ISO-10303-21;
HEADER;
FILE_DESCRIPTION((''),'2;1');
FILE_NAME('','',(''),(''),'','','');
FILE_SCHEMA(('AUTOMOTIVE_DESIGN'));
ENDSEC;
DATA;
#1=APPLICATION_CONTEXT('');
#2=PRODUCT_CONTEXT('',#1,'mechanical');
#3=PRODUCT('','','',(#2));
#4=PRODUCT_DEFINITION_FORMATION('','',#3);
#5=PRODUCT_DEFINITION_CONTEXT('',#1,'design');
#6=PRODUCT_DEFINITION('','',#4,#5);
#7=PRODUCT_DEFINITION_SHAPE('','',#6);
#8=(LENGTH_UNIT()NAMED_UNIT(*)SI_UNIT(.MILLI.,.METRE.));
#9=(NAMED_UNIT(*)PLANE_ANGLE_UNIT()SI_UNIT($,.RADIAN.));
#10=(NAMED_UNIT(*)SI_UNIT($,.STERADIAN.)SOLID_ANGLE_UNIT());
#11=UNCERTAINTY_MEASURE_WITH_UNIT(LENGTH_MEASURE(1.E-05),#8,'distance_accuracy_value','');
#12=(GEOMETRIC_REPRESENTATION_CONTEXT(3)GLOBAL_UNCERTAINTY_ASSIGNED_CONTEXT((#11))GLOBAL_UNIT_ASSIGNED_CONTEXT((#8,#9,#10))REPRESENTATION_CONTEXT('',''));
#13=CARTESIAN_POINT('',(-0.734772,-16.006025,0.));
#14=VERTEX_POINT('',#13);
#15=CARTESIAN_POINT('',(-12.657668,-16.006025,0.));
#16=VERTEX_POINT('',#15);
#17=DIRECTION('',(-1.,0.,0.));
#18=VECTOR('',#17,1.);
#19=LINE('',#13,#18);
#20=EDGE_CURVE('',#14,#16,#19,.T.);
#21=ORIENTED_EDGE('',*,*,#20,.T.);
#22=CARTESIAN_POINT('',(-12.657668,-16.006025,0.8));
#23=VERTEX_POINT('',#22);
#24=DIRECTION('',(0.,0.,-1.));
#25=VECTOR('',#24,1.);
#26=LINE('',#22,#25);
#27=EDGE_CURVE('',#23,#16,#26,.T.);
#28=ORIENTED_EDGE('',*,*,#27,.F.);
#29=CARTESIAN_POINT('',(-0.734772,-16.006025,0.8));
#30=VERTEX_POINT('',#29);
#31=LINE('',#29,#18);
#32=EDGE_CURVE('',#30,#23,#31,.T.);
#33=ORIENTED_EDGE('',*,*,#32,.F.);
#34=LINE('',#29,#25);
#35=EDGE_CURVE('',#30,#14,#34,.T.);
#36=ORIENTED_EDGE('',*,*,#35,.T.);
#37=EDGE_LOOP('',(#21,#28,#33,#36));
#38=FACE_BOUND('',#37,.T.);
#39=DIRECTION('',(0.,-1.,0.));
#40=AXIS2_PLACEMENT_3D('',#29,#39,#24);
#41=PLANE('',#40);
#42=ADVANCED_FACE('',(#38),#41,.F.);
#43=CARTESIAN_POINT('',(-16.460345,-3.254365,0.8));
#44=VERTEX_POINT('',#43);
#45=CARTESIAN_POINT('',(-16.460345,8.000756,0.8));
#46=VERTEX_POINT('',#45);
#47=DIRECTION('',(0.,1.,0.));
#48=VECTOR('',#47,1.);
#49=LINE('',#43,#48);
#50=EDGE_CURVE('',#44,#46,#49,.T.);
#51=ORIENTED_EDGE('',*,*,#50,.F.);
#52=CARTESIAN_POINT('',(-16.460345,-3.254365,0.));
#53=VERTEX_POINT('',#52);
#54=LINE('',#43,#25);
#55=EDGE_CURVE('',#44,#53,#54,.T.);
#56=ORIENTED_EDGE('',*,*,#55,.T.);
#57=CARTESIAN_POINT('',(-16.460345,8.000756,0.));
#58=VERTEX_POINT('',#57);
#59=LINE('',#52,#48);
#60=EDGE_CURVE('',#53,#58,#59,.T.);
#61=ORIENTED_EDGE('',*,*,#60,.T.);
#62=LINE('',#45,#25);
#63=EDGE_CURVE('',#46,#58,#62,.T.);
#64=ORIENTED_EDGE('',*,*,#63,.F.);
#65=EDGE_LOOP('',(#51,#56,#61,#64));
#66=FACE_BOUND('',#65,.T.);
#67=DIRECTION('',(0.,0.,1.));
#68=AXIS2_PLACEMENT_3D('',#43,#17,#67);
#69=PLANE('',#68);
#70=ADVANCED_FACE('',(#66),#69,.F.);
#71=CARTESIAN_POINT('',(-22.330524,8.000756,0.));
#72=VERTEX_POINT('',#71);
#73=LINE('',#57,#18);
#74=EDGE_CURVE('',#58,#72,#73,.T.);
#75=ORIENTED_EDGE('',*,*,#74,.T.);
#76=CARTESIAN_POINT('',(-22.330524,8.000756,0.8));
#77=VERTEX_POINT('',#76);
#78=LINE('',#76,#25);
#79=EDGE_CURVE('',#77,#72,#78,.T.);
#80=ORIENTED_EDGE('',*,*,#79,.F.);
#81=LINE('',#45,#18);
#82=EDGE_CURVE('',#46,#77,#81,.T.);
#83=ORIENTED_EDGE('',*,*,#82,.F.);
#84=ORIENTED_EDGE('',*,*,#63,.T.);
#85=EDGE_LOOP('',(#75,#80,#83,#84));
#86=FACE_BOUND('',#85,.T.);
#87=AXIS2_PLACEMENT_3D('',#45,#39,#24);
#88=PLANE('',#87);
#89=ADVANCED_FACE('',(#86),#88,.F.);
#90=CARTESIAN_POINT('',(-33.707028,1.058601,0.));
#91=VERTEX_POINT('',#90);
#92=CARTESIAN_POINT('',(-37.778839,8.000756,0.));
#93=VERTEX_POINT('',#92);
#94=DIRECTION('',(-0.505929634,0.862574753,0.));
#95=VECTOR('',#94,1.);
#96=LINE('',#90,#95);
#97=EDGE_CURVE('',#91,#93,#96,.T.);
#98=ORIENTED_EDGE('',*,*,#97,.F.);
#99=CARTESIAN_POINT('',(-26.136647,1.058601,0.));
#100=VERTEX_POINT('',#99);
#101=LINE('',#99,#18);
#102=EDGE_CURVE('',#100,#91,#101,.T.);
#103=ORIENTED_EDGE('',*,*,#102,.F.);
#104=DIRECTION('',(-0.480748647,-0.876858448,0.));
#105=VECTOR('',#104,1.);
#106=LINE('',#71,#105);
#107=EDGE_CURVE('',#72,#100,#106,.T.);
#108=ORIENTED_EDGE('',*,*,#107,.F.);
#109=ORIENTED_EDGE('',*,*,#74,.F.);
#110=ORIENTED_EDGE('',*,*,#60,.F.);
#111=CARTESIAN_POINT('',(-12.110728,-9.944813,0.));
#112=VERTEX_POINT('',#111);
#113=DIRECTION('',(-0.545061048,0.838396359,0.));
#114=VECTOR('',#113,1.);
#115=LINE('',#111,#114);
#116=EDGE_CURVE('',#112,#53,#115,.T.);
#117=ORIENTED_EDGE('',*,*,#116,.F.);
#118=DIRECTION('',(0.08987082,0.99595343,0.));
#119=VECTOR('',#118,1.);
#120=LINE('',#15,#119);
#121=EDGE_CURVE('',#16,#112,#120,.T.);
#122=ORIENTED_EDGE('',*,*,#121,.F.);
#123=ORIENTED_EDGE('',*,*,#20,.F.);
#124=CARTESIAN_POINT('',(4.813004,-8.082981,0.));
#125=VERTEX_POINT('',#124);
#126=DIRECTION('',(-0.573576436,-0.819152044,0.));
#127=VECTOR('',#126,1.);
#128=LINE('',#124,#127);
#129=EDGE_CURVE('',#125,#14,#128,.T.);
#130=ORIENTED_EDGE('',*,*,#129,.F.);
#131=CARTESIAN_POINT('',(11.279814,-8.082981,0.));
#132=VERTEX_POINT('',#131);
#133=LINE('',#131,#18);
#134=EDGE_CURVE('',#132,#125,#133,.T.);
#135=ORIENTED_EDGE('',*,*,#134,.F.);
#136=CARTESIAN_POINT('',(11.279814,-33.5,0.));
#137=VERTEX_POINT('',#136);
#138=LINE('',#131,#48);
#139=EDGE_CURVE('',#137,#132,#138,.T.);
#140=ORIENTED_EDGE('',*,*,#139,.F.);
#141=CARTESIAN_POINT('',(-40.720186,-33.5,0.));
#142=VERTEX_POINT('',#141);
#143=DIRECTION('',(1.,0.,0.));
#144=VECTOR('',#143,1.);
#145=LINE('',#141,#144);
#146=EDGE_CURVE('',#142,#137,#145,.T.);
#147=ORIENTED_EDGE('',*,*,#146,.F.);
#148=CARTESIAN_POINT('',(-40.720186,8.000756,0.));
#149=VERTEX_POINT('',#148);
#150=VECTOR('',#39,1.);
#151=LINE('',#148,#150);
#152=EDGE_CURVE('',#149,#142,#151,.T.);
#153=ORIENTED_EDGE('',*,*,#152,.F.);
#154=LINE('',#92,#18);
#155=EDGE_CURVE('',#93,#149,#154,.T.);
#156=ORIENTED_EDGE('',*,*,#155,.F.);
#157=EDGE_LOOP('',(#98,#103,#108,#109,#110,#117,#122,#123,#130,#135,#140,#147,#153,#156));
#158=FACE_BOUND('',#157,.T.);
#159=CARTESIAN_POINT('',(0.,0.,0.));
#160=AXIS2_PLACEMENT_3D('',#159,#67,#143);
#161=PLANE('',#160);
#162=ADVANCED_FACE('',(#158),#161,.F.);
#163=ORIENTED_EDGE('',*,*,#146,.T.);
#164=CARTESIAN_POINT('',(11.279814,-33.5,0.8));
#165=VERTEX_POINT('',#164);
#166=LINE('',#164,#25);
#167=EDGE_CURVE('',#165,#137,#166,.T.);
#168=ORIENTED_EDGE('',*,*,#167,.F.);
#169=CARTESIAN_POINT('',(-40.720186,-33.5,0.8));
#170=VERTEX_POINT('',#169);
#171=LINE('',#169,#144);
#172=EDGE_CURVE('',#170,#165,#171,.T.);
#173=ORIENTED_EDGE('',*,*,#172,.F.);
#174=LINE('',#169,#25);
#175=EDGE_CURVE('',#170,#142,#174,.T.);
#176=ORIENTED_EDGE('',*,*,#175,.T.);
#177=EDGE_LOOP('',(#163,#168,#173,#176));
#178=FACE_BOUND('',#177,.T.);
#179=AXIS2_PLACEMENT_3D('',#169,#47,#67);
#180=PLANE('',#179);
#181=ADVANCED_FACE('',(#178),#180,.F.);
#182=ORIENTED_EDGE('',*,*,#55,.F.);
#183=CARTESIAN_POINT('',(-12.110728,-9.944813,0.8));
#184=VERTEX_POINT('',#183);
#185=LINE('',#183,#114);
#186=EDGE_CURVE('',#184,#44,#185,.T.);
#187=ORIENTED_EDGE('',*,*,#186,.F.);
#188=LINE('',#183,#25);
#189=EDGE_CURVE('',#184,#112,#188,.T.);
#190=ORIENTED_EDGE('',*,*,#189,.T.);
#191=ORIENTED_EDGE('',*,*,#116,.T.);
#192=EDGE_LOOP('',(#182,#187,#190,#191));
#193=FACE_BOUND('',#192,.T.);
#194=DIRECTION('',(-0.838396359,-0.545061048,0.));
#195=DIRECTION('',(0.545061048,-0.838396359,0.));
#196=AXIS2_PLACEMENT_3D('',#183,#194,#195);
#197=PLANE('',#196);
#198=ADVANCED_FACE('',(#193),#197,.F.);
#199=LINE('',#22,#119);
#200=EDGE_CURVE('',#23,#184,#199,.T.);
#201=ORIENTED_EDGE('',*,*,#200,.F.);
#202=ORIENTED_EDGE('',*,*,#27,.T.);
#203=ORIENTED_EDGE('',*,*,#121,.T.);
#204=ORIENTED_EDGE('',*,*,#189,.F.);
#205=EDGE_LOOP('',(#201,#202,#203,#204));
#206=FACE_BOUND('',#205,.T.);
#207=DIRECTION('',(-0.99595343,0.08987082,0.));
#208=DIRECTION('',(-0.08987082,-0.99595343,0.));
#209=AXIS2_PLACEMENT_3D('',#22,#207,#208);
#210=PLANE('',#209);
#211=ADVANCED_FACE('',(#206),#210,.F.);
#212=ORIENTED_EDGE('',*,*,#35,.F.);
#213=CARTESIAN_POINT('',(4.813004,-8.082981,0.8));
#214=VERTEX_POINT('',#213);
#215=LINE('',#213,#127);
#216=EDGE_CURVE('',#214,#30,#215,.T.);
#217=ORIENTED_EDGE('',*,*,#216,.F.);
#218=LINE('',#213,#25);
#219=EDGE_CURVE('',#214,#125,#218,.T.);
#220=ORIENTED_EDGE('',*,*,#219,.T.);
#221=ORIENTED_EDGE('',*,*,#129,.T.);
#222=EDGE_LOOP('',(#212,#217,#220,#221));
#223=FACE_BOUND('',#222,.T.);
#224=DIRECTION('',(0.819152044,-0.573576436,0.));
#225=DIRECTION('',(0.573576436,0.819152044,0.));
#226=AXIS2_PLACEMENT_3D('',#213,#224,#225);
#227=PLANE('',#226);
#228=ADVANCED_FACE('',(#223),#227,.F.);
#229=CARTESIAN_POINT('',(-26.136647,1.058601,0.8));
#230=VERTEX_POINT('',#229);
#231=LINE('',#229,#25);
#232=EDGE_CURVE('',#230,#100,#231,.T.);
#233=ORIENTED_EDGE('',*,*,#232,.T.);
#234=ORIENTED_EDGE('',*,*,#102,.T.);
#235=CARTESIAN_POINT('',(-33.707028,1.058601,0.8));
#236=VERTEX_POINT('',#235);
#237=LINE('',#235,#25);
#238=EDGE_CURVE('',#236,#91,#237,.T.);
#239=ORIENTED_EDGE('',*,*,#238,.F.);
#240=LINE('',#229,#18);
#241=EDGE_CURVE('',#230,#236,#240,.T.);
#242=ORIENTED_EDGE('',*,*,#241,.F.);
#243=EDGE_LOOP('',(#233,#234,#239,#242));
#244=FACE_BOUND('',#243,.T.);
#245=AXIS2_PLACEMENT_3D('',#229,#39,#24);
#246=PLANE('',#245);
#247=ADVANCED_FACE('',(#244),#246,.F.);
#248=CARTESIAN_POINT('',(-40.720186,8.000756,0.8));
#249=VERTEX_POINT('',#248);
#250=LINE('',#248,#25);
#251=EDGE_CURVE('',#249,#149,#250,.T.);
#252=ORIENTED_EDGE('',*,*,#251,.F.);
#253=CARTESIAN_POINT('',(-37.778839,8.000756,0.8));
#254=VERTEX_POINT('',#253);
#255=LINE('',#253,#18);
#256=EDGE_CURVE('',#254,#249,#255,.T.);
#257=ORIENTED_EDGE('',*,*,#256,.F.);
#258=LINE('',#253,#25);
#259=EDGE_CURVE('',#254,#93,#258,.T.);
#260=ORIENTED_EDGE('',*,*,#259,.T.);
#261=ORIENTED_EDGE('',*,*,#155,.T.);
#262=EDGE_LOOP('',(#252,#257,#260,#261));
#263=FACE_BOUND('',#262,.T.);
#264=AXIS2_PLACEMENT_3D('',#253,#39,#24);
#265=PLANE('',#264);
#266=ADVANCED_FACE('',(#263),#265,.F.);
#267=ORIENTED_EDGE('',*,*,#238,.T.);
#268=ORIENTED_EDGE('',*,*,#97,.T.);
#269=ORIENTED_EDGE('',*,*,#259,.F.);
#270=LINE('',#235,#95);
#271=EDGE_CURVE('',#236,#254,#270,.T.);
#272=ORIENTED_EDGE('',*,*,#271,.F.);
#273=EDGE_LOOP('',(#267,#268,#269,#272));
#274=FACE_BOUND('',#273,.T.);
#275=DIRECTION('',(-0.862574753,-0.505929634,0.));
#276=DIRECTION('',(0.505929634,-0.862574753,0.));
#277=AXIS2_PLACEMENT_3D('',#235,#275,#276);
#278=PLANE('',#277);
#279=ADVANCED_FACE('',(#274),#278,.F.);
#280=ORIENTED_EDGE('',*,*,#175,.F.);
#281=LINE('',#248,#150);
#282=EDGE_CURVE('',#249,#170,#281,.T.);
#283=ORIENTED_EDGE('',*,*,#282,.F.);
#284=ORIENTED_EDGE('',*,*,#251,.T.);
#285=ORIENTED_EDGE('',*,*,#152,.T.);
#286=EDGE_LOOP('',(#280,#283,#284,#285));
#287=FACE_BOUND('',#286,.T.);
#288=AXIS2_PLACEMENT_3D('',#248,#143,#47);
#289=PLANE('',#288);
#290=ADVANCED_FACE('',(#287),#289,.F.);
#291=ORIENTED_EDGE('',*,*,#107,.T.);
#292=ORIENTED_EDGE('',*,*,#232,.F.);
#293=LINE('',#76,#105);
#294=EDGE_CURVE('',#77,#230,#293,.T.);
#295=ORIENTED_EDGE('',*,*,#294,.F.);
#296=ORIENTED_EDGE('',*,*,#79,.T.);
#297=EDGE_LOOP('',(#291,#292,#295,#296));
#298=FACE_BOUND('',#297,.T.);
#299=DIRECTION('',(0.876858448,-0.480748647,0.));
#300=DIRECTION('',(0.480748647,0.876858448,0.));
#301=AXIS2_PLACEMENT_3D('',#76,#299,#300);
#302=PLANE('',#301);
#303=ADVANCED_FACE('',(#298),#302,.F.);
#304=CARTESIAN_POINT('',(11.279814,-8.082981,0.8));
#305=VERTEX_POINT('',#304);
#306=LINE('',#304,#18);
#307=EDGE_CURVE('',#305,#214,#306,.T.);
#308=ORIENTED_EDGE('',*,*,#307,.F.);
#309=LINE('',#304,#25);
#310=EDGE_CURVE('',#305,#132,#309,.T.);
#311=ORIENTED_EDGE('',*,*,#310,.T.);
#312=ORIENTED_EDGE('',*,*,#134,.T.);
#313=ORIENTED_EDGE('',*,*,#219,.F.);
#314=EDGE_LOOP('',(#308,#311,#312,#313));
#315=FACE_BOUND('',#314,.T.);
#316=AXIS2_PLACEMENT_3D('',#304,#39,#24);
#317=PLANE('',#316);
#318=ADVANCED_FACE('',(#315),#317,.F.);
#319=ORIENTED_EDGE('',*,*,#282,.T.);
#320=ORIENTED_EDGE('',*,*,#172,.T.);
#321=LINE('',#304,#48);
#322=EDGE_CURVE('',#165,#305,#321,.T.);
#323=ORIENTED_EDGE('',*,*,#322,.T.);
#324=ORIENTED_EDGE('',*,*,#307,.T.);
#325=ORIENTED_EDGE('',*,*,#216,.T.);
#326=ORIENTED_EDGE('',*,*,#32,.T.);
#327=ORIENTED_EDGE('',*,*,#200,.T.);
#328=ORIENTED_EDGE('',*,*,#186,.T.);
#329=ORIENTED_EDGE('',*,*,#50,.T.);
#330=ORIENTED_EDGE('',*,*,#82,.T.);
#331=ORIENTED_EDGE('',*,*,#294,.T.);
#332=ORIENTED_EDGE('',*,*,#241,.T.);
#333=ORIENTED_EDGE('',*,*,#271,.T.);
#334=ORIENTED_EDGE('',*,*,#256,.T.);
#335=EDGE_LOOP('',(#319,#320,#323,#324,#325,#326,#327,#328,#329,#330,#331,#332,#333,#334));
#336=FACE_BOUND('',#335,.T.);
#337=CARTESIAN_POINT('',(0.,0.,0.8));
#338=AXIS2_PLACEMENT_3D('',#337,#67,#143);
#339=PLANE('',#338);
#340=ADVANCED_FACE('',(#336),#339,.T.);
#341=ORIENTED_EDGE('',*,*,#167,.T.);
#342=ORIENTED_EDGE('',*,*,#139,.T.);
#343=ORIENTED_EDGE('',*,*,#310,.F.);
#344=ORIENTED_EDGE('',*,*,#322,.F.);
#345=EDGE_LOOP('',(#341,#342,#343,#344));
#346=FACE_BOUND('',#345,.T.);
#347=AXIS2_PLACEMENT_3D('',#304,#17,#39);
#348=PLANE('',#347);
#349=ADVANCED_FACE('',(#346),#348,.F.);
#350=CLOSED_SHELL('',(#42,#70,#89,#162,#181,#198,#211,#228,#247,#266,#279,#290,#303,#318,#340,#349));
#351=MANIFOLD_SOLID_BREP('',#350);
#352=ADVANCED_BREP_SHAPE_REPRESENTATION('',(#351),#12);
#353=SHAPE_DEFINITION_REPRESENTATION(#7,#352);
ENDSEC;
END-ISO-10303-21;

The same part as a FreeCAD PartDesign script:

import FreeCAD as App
import Part
import Sketcher

V = App.Vector
Q = App.Units.Quantity


def add_polygon(sketch, points):
    """Adds a closed chain of lines whose ends are joined by coincident constraints."""
    first, n = sketch.GeometryCount, len(points)
    for a, b in zip(points, points[1:] + points[:1]):
        sketch.addGeometry(Part.LineSegment(App.Vector(*a, 0), App.Vector(*b, 0)), False)
    for i in range(n):
        sketch.addConstraint(Sketcher.Constraint("Coincident", first + i, 2, first + (i + 1) % n, 1))

doc = App.newDocument("Part")
body = doc.addObject("PartDesign::Body", "Body")

sketch1 = body.newObject("Sketcher::SketchObject", "Sketch")
sketch1.AttachmentSupport = (doc.getObject("XY_Plane"), [""])
sketch1.MapMode = "FlatFace"
add_polygon(sketch1, [(11.3, -8.1), (4.8, -8.1), (-0.7, -16), (-12.7, -16), (-12.1, -9.9), (-16.5, -3.3), (-16.5, 8), (-22.3, 8), (-26.1, 1.1), (-33.7, 1.1), (-37.8, 8), (-40.7, 8), (-40.7, -33.5), (11.3, -33.5)])
sketch1.addConstraint([
    Sketcher.Constraint("Horizontal", 0),
    Sketcher.Constraint("Horizontal", 2),
    Sketcher.Constraint("Vertical", 5),
    Sketcher.Constraint("Horizontal", 6),
    Sketcher.Constraint("Horizontal", 8),
    Sketcher.Constraint("Horizontal", 10),
    Sketcher.Constraint("Vertical", 11),
    Sketcher.Constraint("Horizontal", 12),
    Sketcher.Constraint("Vertical", 13),
    Sketcher.Constraint("Horizontal", 6, 2, 9, 2),
    Sketcher.Constraint("DistanceX", 12, 1, 12, 2, Q("52 mm")),
    Sketcher.Constraint("Angle", 1, Q("-125 deg")),
    Sketcher.Constraint("DistanceY", 11, 2, -1, 1, Q("33.5 mm")),
    Sketcher.Constraint("DistanceX", 0, 2, 0, 1, Q("6.46681 mm")),
    Sketcher.Constraint("DistanceX", 6, 2, 6, 1, Q("5.870179 mm")),
    Sketcher.Constraint("DistanceX", 8, 2, 8, 1, Q("7.57038 mm")),
    Sketcher.Constraint("DistanceY", 5, 1, 5, 2, Q("11.25512 mm")),
    Sketcher.Constraint("DistanceY", 13, 1, 13, 2, Q("25.417019 mm")),
    Sketcher.Constraint("DistanceY", -1, 1, 7, 2, Q("1.058601 mm")),
    Sketcher.Constraint("DistanceX", 8, 2, 3, 2, Q("21.596299 mm")),
    Sketcher.Constraint("Distance", 1, Q("9.672251 mm")),
    Sketcher.Constraint("Distance", 3, Q("6.085839 mm")),
    Sketcher.Constraint("DistanceX", 2, 2, 2, 1, Q("11.922896 mm")),
    Sketcher.Constraint("DistanceX", 10, 2, 10, 1, Q("2.941347 mm")),
    Sketcher.Constraint("DistanceY", 11, 2, 11, 1, Q("41.500756 mm")),
    Sketcher.Constraint("DistanceX", 1, 2, -1, 1, Q("0.734772 mm")),
    Sketcher.Constraint("DistanceX", 3, 2, -1, 1, Q("12.110728 mm")),
    Sketcher.Constraint("DistanceX", 4, 2, 0, 2, Q("21.273349 mm")),
])
pad1 = body.newObject("PartDesign::Pad", "Pad")
pad1.Profile = sketch1
pad1.Length = 0.8

doc.recompute()
